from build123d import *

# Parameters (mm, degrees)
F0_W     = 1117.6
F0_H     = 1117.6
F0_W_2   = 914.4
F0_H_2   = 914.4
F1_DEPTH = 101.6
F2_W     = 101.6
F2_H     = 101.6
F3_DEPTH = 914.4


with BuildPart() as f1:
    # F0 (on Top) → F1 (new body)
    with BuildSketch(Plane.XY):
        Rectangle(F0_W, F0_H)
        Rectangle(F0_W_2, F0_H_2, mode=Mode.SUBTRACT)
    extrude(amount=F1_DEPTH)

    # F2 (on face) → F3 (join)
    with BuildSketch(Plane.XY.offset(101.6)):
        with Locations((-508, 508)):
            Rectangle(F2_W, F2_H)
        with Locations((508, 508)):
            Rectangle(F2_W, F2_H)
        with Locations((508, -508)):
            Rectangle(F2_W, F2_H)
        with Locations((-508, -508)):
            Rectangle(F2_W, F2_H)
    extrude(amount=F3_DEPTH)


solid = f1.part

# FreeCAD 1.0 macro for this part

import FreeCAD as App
import Part
import Sketcher
from FreeCAD import Vector
Q = App.Units.Quantity


def add_polygon(sketch, points):
    """Adds a closed chain of lines whose ends are joined by coincident constraints."""
    first, n = sketch.GeometryCount, len(points)
    for a, b in zip(points, points[1:] + points[:1]):
        sketch.addGeometry(Part.LineSegment(App.Vector(*a, 0), App.Vector(*b, 0)), False)
    for i in range(n):
        sketch.addConstraint(Sketcher.Constraint("Coincident", first + i, 2, first + (i + 1) % n, 1))

doc = App.newDocument("Part")
body = doc.addObject("PartDesign::Body", "Body")

# Sketch on XY plane
sketch1 = body.newObject("Sketcher::SketchObject", "Sketch")
sketch1.AttachmentSupport = (doc.getObject("XY_Plane"), [""])
sketch1.MapMode = "FlatFace"
add_polygon(sketch1, [(-559, 559), (-559, -559), (559, -559), (559, 559)])  # lines 0-3
add_polygon(sketch1, [(457, -457), (-457, -457), (-457, 457), (457, 457)])  # lines 4-7
sketch1.addConstraint([
    Sketcher.Constraint("Vertical", 0),
    Sketcher.Constraint("Horizontal", 1),
    Sketcher.Constraint("Vertical", 2),
    Sketcher.Constraint("Horizontal", 3),
    Sketcher.Constraint("Horizontal", 4),
    Sketcher.Constraint("Vertical", 5),
    Sketcher.Constraint("Horizontal", 6),
    Sketcher.Constraint("Vertical", 7),
    Sketcher.Constraint("Symmetric", 0, 2, 2, 2, -1, 1),
    Sketcher.Constraint("Symmetric", 4, 2, 6, 2, -1, 1),
    Sketcher.Constraint("Equal", 3, 0),
    Sketcher.Constraint("Equal", 6, 5),
    Sketcher.Constraint("DistanceX", 1, 1, 1, 2, Q("44 in")),
    Sketcher.Constraint("DistanceX", 4, 2, 4, 1, Q("36 in")),
])
pad1 = body.newObject("PartDesign::Pad", "Pad")
pad1.Profile = sketch1
pad1.Length = Q("4 in")

# Sketch on XY plane
sketch2 = body.newObject("Sketcher::SketchObject", "Sketch001")
sketch2.AttachmentSupport = (doc.getObject("XY_Plane"), [""])
sketch2.MapMode = "FlatFace"
sketch2.AttachmentOffset = App.Placement(Vector(0, 0, 4 * 25.4), App.Rotation())
add_polygon(sketch2, [(-559, 559), (-559, 457), (-457, 457), (-457, 559)])  # lines 0-3
add_polygon(sketch2, [(457, 559), (457, 457), (559, 457), (559, 559)])  # lines 4-7
add_polygon(sketch2, [(457, -457), (457, -559), (559, -559), (559, -457)])  # lines 8-11
add_polygon(sketch2, [(-559, -457), (-559, -559), (-457, -559), (-457, -457)])  # lines 12-15
sketch2.addConstraint([
    Sketcher.Constraint("Vertical", 0),
    Sketcher.Constraint("Horizontal", 1),
    Sketcher.Constraint("Vertical", 2),
    Sketcher.Constraint("Horizontal", 3),
    Sketcher.Constraint("Vertical", 4),
    Sketcher.Constraint("Horizontal", 5),
    Sketcher.Constraint("Vertical", 6),
    Sketcher.Constraint("Horizontal", 7),
    Sketcher.Constraint("Vertical", 8),
    Sketcher.Constraint("Horizontal", 9),
    Sketcher.Constraint("Vertical", 10),
    Sketcher.Constraint("Horizontal", 11),
    Sketcher.Constraint("Vertical", 12),
    Sketcher.Constraint("Horizontal", 13),
    Sketcher.Constraint("Vertical", 14),
    Sketcher.Constraint("Horizontal", 15),
    Sketcher.Constraint("Symmetric", 2, 2, 8, 2, -1, 1),
    Sketcher.Constraint("Symmetric", 0, 2, 10, 2, -1, 1),
    Sketcher.Constraint("Symmetric", 6, 2, 12, 2, -1, 1),
    Sketcher.Constraint("Symmetric", 4, 2, 14, 2, -1, 1),
    Sketcher.Constraint("Symmetric", 1, 2, 4, 2, -2),
    Sketcher.Constraint("Symmetric", 3, 2, 6, 2, -2),
    Sketcher.Constraint("Equal", 15, 0),
    Sketcher.Constraint("DistanceX", 1, 1, 1, 2, Q("4 in")),
    Sketcher.Constraint("DistanceX", 0, 2, -1, 1, Q("22 in")),
    Sketcher.Constraint("DistanceY", -1, 1, 0, 2, Q("18 in")),
])
pad2 = body.newObject("PartDesign::Pad", "Pad001")
pad2.Profile = sketch2
pad2.Length = Q("36 in")

doc.recompute()
